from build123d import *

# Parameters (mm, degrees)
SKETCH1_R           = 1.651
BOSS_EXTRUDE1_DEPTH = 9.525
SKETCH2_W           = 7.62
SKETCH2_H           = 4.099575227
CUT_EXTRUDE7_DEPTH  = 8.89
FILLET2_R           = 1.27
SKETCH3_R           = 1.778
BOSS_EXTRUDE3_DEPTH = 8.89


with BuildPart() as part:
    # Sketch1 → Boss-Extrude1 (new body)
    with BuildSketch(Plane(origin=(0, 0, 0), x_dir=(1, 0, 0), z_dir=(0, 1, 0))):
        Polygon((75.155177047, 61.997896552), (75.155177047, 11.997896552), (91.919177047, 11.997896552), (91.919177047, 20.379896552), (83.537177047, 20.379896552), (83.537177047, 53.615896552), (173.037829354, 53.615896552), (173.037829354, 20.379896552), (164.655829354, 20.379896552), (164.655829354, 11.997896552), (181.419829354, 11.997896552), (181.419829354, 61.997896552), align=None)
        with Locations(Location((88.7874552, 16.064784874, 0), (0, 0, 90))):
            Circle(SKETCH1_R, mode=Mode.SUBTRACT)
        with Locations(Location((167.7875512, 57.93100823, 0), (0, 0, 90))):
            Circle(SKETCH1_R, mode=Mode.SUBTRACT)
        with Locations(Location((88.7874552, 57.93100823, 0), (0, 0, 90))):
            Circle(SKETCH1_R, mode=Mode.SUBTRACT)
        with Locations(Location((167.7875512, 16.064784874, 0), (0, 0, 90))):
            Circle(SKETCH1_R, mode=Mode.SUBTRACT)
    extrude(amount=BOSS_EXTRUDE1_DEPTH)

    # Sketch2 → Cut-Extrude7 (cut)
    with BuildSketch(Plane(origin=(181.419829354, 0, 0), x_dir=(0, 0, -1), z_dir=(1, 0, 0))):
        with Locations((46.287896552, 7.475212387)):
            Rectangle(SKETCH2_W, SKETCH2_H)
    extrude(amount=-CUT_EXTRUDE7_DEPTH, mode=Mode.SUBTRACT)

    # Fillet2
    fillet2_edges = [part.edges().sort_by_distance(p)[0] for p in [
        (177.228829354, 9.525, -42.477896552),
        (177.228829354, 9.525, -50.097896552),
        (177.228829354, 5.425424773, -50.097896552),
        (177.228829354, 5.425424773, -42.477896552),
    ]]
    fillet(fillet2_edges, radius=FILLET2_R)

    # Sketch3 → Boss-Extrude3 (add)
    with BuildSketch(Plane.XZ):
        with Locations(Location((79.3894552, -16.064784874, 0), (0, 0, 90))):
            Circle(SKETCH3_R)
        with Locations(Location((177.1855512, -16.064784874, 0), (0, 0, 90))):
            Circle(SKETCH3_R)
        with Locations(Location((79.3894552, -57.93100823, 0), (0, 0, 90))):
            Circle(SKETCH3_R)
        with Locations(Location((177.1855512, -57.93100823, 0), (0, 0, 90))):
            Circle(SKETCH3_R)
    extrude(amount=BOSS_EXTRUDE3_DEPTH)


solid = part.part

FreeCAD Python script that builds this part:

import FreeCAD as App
import Part
import Sketcher
Q = App.Units.Quantity


def edges_at(feature, points):
    """Names of the edges that pass closest to the given points."""
    edges = feature.Shape.Edges
    near = lambda p: min(range(len(edges)), key=lambda i: edges[i].distToShape(Part.Vertex(*p))[0])
    return sorted({f"Edge{near(p) + 1}" for p in points})

doc = App.newDocument("Part")
params = doc.addObject("Spreadsheet::Sheet", "Params")
for row, (alias, value) in enumerate([
    ("sketch1_diameter", "0.13 in"),
    ("sketch1_width", "0.66 in"),
    ("sketch1_width2", "0.33 in"),
    ("pad1_length", "0.375 in"),
    ("sketch2_height", "0.3 in"),
    ("pocket1_length", "0.35 in"),
    ("fillet_radius", "0.05 in"),
    ("sketch3_diameter", "0.14 in"),
    ("pad2_length", "0.35 in"),
], start=1):
    params.set(f"A{row}", alias)
    params.set(f"B{row}", "=" + value)
    params.setAlias(f"B{row}", alias)

body = doc.addObject("PartDesign::Body", "Body")

# Sketch on XZ plane
sketch1 = body.newObject("Sketcher::SketchObject", "Sketch")
sketch1.AttachmentSupport = (doc.getObject("XZ_Plane"), [""])
sketch1.MapMode = "FlatFace"
sketch1.addGeometry([
    Part.LineSegment(App.Vector(75.2, -62, 0), App.Vector(75.2, -12, 0)),  # 0
    Part.LineSegment(App.Vector(75.2, -12, 0), App.Vector(91.9, -12, 0)),  # 1
    Part.LineSegment(App.Vector(91.9, -12, 0), App.Vector(91.9, -20.4, 0)),  # 2
    Part.LineSegment(App.Vector(91.9, -20.4, 0), App.Vector(83.5, -20.4, 0)),  # 3
    Part.LineSegment(App.Vector(83.5, -20.4, 0), App.Vector(83.5, -53.6, 0)),  # 4
    Part.LineSegment(App.Vector(83.5, -53.6, 0), App.Vector(173, -53.6, 0)),  # 5
    Part.LineSegment(App.Vector(173, -53.6, 0), App.Vector(173, -20.4, 0)),  # 6
    Part.LineSegment(App.Vector(173, -20.4, 0), App.Vector(164.7, -20.4, 0)),  # 7
    Part.LineSegment(App.Vector(164.7, -20.4, 0), App.Vector(164.7, -12, 0)),  # 8
    Part.LineSegment(App.Vector(164.7, -12, 0), App.Vector(181.4, -12, 0)),  # 9
    Part.LineSegment(App.Vector(181.4, -12, 0), App.Vector(181.4, -62, 0)),  # 10
    Part.LineSegment(App.Vector(181.4, -62, 0), App.Vector(75.2, -62, 0)),  # 11
    Part.Circle(App.Vector(88.8, -16.1, 0), App.Vector(0, 0, 1), 1.7),  # 12
    Part.Circle(App.Vector(167.8, -16.1, 0), App.Vector(0, 0, 1), 1.7),  # 13
    Part.Circle(App.Vector(88.8, -57.9, 0), App.Vector(0, 0, 1), 1.7),  # 14
    Part.Circle(App.Vector(167.8, -57.9, 0), App.Vector(0, 0, 1), 1.7),  # 15
], False)
sketch1.addConstraint([
    Sketcher.Constraint("Coincident", 0, 2, 1, 1),
    Sketcher.Constraint("Coincident", 1, 2, 2, 1),
    Sketcher.Constraint("Coincident", 2, 2, 3, 1),
    Sketcher.Constraint("Coincident", 3, 2, 4, 1),
    Sketcher.Constraint("Coincident", 4, 2, 5, 1),
    Sketcher.Constraint("Coincident", 5, 2, 6, 1),
    Sketcher.Constraint("Coincident", 6, 2, 7, 1),
    Sketcher.Constraint("Coincident", 7, 2, 8, 1),
    Sketcher.Constraint("Coincident", 8, 2, 9, 1),
    Sketcher.Constraint("Coincident", 9, 2, 10, 1),
    Sketcher.Constraint("Coincident", 10, 2, 11, 1),
    Sketcher.Constraint("Coincident", 11, 2, 0, 1),
    Sketcher.Constraint("Vertical", 0),
    Sketcher.Constraint("Horizontal", 1),
    Sketcher.Constraint("Vertical", 2),
    Sketcher.Constraint("Horizontal", 3),
    Sketcher.Constraint("Vertical", 4),
    Sketcher.Constraint("Horizontal", 5),
    Sketcher.Constraint("Vertical", 6),
    Sketcher.Constraint("Horizontal", 7),
    Sketcher.Constraint("Vertical", 8),
    Sketcher.Constraint("Horizontal", 9),
    Sketcher.Constraint("Vertical", 10),
    Sketcher.Constraint("Horizontal", 11),
    Sketcher.Constraint("Equal", 12, 13),
    Sketcher.Constraint("Equal", 13, 14),
    Sketcher.Constraint("Equal", 14, 15),
    Sketcher.Constraint("Horizontal", 12, 3, 13, 3),
    Sketcher.Constraint("Horizontal", 14, 3, 15, 3),
    Sketcher.Constraint("Horizontal", 3, 2, 6, 2),
    Sketcher.Constraint("Horizontal", 1, 2, 8, 2),
    Sketcher.Constraint("Vertical", 12, 3, 14, 3),
    Sketcher.Constraint("Vertical", 13, 3, 15, 3),
    Sketcher.Constraint("Equal", 3, 7),
    Sketcher.Constraint("Equal", 1, 9),
    Sketcher.Constraint("Equal", 7, 2),
    Sketcher.Constraint("Diameter", 12, Q("0.13 in")),
    Sketcher.Constraint("DistanceX", 1, 1, 1, 2, Q("0.66 in")),
    Sketcher.Constraint("DistanceX", 3, 2, 3, 1, Q("0.33 in")),
    Sketcher.Constraint("DistanceY", 10, 2, 5, 2, Q("0.33 in")),
    Sketcher.Constraint("DistanceY", 0, 1, 0, 2, 50.0),
    Sketcher.Constraint("DistanceX", 5, 1, 5, 2, 89.500652),
    Sketcher.Constraint("DistanceX", -1, 1, 13, 3, 167.787551),
    Sketcher.Constraint("DistanceY", 14, 3, -1, 1, 57.931008),
    Sketcher.Constraint("DistanceX", -1, 1, 5, 2, 173.037829),
    Sketcher.Constraint("DistanceX", 0, 2, 12, 3, 13.632278),
    Sketcher.Constraint("DistanceY", 12, 3, 0, 2, 4.066888),
    Sketcher.Constraint("DistanceY", 14, 3, 0, 2, 45.933112),
])
sketch1.setExpression("Constraints[36]", "Params.sketch1_diameter")
sketch1.setExpression("Constraints[37]", "Params.sketch1_width")
sketch1.setExpression("Constraints[38]", "Params.sketch1_width2")
pad1 = body.newObject("PartDesign::Pad", "Pad")
pad1.Profile = sketch1
pad1.setExpression("Length", "Params.pad1_length")
pad1.Reversed = True

# Sketch on YZ plane
sketch2 = body.newObject("Sketcher::SketchObject", "Sketch001")
sketch2.AttachmentSupport = (doc.getObject("YZ_Plane"), [""])
sketch2.MapMode = "FlatFace"
sketch2.AttachmentOffset = App.Placement(App.Vector(0, 0, 181.419829), App.Rotation())
sketch2.addGeometry([
    Part.LineSegment(App.Vector(9.5, -42.5, 0), App.Vector(5.4, -42.5, 0)),
    Part.LineSegment(App.Vector(5.4, -42.5, 0), App.Vector(5.4, -50.1, 0)),
    Part.LineSegment(App.Vector(5.4, -50.1, 0), App.Vector(9.5, -50.1, 0)),
    Part.LineSegment(App.Vector(9.5, -50.1, 0), App.Vector(9.5, -42.5, 0)),
], False)
sketch2.addConstraint([
    Sketcher.Constraint("Coincident", 0, 2, 1, 1),
    Sketcher.Constraint("Coincident", 1, 2, 2, 1),
    Sketcher.Constraint("Coincident", 2, 2, 3, 1),
    Sketcher.Constraint("Coincident", 3, 2, 0, 1),
    Sketcher.Constraint("Horizontal", 0),
    Sketcher.Constraint("Vertical", 1),
    Sketcher.Constraint("Horizontal", 2),
    Sketcher.Constraint("Vertical", 3),
    Sketcher.Constraint("DistanceY", 1, 2, 1, 1, Q("0.3 in")),
    Sketcher.Constraint("DistanceX", -1, 1, 2, 2, Q("0.375 in")),
    Sketcher.Constraint("DistanceX", 0, 2, 0, 1, 4.099575),
    Sketcher.Constraint("DistanceY", 0, 2, -1, 1, 42.477897),
])
sketch2.setExpression("Constraints[8]", "Params.sketch2_height")
pocket1 = body.newObject("PartDesign::Pocket", "Pocket")
pocket1.Profile = sketch2
pocket1.setExpression("Length", "Params.pocket1_length")
doc.recompute()

fillet = body.newObject("PartDesign::Fillet", "Fillet")
fillet.Base = (pocket1, edges_at(pocket1, [
    (177.229, 9.525, -42.478),
    (177.229, 9.525, -50.098),
    (177.229, 5.425, -50.098),
    (177.229, 5.425, -42.478),
]))
fillet.setExpression("Radius", "Params.fillet_radius")

# Sketch on XZ plane
sketch3 = body.newObject("Sketcher::SketchObject", "Sketch002")
sketch3.AttachmentSupport = (doc.getObject("XZ_Plane"), [""])
sketch3.MapMode = "FlatFace"
sketch3.addGeometry([
    Part.Circle(App.Vector(79.4, -16.1, 0), App.Vector(0, 0, 1), 1.8),
    Part.Circle(App.Vector(177.2, -16.1, 0), App.Vector(0, 0, 1), 1.8),
    Part.Circle(App.Vector(79.4, -57.9, 0), App.Vector(0, 0, 1), 1.8),
    Part.Circle(App.Vector(177.2, -57.9, 0), App.Vector(0, 0, 1), 1.8),
], False)
sketch3.addConstraint([
    Sketcher.Constraint("Equal", 0, 1),
    Sketcher.Constraint("Equal", 1, 2),
    Sketcher.Constraint("Equal", 2, 3),
    Sketcher.Constraint("Horizontal", 0, 3, 1, 3),
    Sketcher.Constraint("Horizontal", 2, 3, 3, 3),
    Sketcher.Constraint("Vertical", 0, 3, 2, 3),
    Sketcher.Constraint("Vertical", 1, 3, 3, 3),
    Sketcher.Constraint("Diameter", 0, Q("0.14 in")),
    Sketcher.Constraint("DistanceX", -1, 1, 1, 3, 177.185551),
    Sketcher.Constraint("DistanceY", 2, 3, -1, 1, 57.931008),
    Sketcher.Constraint("DistanceX", -1, 1, 0, 3, 79.389455),
    Sketcher.Constraint("DistanceY", 0, 3, -1, 1, 16.064785),
])
sketch3.setExpression("Constraints[7]", "Params.sketch3_diameter")
pad2 = body.newObject("PartDesign::Pad", "Pad001")
pad2.Profile = sketch3
pad2.setExpression("Length", "Params.pad2_length")

doc.recompute()
